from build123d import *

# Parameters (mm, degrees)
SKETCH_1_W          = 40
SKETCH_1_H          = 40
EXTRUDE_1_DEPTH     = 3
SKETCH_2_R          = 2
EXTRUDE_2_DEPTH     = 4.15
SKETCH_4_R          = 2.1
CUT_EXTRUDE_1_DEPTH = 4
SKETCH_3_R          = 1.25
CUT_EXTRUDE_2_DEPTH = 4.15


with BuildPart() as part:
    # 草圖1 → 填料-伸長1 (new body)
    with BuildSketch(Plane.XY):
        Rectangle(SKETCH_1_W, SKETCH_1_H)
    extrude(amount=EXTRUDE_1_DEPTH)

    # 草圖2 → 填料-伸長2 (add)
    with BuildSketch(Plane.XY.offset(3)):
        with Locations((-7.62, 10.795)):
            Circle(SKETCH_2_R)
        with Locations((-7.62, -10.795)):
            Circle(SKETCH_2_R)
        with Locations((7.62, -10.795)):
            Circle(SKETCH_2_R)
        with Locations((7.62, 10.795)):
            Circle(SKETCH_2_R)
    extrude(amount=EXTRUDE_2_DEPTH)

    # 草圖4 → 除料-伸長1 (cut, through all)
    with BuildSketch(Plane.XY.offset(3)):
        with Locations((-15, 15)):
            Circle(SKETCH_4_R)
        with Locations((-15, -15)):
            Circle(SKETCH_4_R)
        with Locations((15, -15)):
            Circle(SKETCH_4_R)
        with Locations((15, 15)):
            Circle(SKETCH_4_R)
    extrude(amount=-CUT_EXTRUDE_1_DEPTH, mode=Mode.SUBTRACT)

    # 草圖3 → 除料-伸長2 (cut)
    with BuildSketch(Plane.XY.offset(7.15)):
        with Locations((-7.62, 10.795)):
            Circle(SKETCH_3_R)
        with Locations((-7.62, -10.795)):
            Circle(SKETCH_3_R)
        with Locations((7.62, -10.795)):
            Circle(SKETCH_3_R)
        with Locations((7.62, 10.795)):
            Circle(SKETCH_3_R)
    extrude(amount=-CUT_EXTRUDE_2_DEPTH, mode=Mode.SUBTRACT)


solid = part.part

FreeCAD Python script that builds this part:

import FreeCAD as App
import Part
import Sketcher
Q = App.Units.Quantity

doc = App.newDocument("Part")
body = doc.addObject("PartDesign::Body", "Body")

# Sketch on XY plane
sketch1 = body.newObject("Sketcher::SketchObject", "Sketch")
sketch1.AttachmentSupport = (doc.getObject("XY_Plane"), [""])
sketch1.MapMode = "FlatFace"
sketch1.addGeometry(Part.LineSegment(App.Vector(-20, 20, 0), App.Vector(-20, -20, 0)), False)
sketch1.addGeometry(Part.LineSegment(App.Vector(-20, -20, 0), App.Vector(20, -20, 0)), False)
sketch1.addGeometry(Part.LineSegment(App.Vector(20, -20, 0), App.Vector(20, 20, 0)), False)
sketch1.addGeometry(Part.LineSegment(App.Vector(20, 20, 0), App.Vector(-20, 20, 0)), False)
sketch1.addConstraint(Sketcher.Constraint("Coincident", 0, 2, 1, 1))
sketch1.addConstraint(Sketcher.Constraint("Coincident", 1, 2, 2, 1))
sketch1.addConstraint(Sketcher.Constraint("Coincident", 2, 2, 3, 1))
sketch1.addConstraint(Sketcher.Constraint("Coincident", 3, 2, 0, 1))
sketch1.addConstraint(Sketcher.Constraint("Vertical", 0))
sketch1.addConstraint(Sketcher.Constraint("Horizontal", 1))
sketch1.addConstraint(Sketcher.Constraint("Vertical", 2))
sketch1.addConstraint(Sketcher.Constraint("Horizontal", 3))
sketch1.addConstraint(Sketcher.Constraint("Symmetric", 0, 2, 2, 2, -1, 1))
sketch1.addConstraint(Sketcher.Constraint("Equal", 3, 0))
sketch1.addConstraint(Sketcher.Constraint("DistanceX", 1, 1, 1, 2, Q("40 mm")))
pad1 = body.newObject("PartDesign::Pad", "Pad")
pad1.Profile = sketch1
pad1.Length = 3

# Sketch on XY plane
sketch2 = body.newObject("Sketcher::SketchObject", "Sketch001")
sketch2.AttachmentSupport = (doc.getObject("XY_Plane"), [""])
sketch2.MapMode = "FlatFace"
sketch2.AttachmentOffset = App.Placement(App.Vector(0, 0, 3), App.Rotation())
sketch2.addGeometry(Part.Circle(App.Vector(-7.6, 10.8, 0), App.Vector(0, 0, 1), 2), False)
sketch2.addGeometry(Part.Circle(App.Vector(-7.6, -10.8, 0), App.Vector(0, 0, 1), 2), False)
sketch2.addGeometry(Part.Circle(App.Vector(7.6, -10.8, 0), App.Vector(0, 0, 1), 2), False)
sketch2.addGeometry(Part.Circle(App.Vector(7.6, 10.8, 0), App.Vector(0, 0, 1), 2), False)
sketch2.addConstraint(Sketcher.Constraint("Equal", 0, 1))
sketch2.addConstraint(Sketcher.Constraint("Equal", 1, 2))
sketch2.addConstraint(Sketcher.Constraint("Equal", 2, 3))
sketch2.addConstraint(Sketcher.Constraint("Symmetric", 0, 3, 2, 3, -1, 1))
sketch2.addConstraint(Sketcher.Constraint("Symmetric", 1, 3, 3, 3, -1, 1))
sketch2.addConstraint(Sketcher.Constraint("Symmetric", 1, 3, 2, 3, -2))
sketch2.addConstraint(Sketcher.Constraint("Diameter", 0, Q("4 mm")))
sketch2.addConstraint(Sketcher.Constraint("DistanceX", 0, 3, -1, 1, Q("7.62 mm")))
sketch2.addConstraint(Sketcher.Constraint("DistanceY", 1, 3, 0, 3, Q("21.59 mm")))
pad2 = body.newObject("PartDesign::Pad", "Pad001")
pad2.Profile = sketch2
pad2.Length = 4.15

# Sketch on XY plane
sketch3 = body.newObject("Sketcher::SketchObject", "Sketch002")
sketch3.AttachmentSupport = (doc.getObject("XY_Plane"), [""])
sketch3.MapMode = "FlatFace"
sketch3.AttachmentOffset = App.Placement(App.Vector(0, 0, 3), App.Rotation())
sketch3.addGeometry(Part.Circle(App.Vector(-15, 15, 0), App.Vector(0, 0, 1), 2.1), False)
sketch3.addGeometry(Part.Circle(App.Vector(-15, -15, 0), App.Vector(0, 0, 1), 2.1), False)
sketch3.addGeometry(Part.Circle(App.Vector(15, -15, 0), App.Vector(0, 0, 1), 2.1), False)
sketch3.addGeometry(Part.Circle(App.Vector(15, 15, 0), App.Vector(0, 0, 1), 2.1), False)
sketch3.addConstraint(Sketcher.Constraint("Equal", 0, 1))
sketch3.addConstraint(Sketcher.Constraint("Equal", 1, 2))
sketch3.addConstraint(Sketcher.Constraint("Equal", 2, 3))
sketch3.addConstraint(Sketcher.Constraint("Symmetric", 0, 3, 2, 3, -1, 1))
sketch3.addConstraint(Sketcher.Constraint("Symmetric", 1, 3, 3, 3, -1, 1))
sketch3.addConstraint(Sketcher.Constraint("Symmetric", 1, 3, 2, 3, -2))
sketch3.addConstraint(Sketcher.Constraint("Diameter", 0, Q("4.2 mm")))
sketch3.addConstraint(Sketcher.Constraint("DistanceX", 0, 3, -1, 1, Q("15 mm")))
sketch3.addConstraint(Sketcher.Constraint("DistanceY", -1, 1, 0, 3, Q("15 mm")))
pocket1 = body.newObject("PartDesign::Pocket", "Pocket")
pocket1.Profile = sketch3
pocket1.Type = "ThroughAll"

# Sketch on XY plane
sketch4 = body.newObject("Sketcher::SketchObject", "Sketch003")
sketch4.AttachmentSupport = (doc.getObject("XY_Plane"), [""])
sketch4.MapMode = "FlatFace"
sketch4.AttachmentOffset = App.Placement(App.Vector(0, 0, 7.15), App.Rotation())
sketch4.addGeometry(Part.Circle(App.Vector(-7.6, 10.8, 0), App.Vector(0, 0, 1), 1.2), False)
sketch4.addGeometry(Part.Circle(App.Vector(-7.6, -10.8, 0), App.Vector(0, 0, 1), 1.2), False)
sketch4.addGeometry(Part.Circle(App.Vector(7.6, -10.8, 0), App.Vector(0, 0, 1), 1.2), False)
sketch4.addGeometry(Part.Circle(App.Vector(7.6, 10.8, 0), App.Vector(0, 0, 1), 1.2), False)
sketch4.addConstraint(Sketcher.Constraint("Equal", 0, 1))
sketch4.addConstraint(Sketcher.Constraint("Equal", 1, 2))
sketch4.addConstraint(Sketcher.Constraint("Equal", 2, 3))
sketch4.addConstraint(Sketcher.Constraint("Symmetric", 0, 3, 2, 3, -1, 1))
sketch4.addConstraint(Sketcher.Constraint("Symmetric", 1, 3, 3, 3, -1, 1))
sketch4.addConstraint(Sketcher.Constraint("Symmetric", 1, 3, 2, 3, -2))
sketch4.addConstraint(Sketcher.Constraint("Diameter", 0, Q("2.5 mm")))
sketch4.addConstraint(Sketcher.Constraint("DistanceX", 0, 3, -1, 1, Q("7.62 mm")))
sketch4.addConstraint(Sketcher.Constraint("DistanceY", 1, 3, 0, 3, Q("21.59 mm")))
pocket2 = body.newObject("PartDesign::Pocket", "Pocket001")
pocket2.Profile = sketch4
pocket2.Length = 4.15

doc.recompute()
